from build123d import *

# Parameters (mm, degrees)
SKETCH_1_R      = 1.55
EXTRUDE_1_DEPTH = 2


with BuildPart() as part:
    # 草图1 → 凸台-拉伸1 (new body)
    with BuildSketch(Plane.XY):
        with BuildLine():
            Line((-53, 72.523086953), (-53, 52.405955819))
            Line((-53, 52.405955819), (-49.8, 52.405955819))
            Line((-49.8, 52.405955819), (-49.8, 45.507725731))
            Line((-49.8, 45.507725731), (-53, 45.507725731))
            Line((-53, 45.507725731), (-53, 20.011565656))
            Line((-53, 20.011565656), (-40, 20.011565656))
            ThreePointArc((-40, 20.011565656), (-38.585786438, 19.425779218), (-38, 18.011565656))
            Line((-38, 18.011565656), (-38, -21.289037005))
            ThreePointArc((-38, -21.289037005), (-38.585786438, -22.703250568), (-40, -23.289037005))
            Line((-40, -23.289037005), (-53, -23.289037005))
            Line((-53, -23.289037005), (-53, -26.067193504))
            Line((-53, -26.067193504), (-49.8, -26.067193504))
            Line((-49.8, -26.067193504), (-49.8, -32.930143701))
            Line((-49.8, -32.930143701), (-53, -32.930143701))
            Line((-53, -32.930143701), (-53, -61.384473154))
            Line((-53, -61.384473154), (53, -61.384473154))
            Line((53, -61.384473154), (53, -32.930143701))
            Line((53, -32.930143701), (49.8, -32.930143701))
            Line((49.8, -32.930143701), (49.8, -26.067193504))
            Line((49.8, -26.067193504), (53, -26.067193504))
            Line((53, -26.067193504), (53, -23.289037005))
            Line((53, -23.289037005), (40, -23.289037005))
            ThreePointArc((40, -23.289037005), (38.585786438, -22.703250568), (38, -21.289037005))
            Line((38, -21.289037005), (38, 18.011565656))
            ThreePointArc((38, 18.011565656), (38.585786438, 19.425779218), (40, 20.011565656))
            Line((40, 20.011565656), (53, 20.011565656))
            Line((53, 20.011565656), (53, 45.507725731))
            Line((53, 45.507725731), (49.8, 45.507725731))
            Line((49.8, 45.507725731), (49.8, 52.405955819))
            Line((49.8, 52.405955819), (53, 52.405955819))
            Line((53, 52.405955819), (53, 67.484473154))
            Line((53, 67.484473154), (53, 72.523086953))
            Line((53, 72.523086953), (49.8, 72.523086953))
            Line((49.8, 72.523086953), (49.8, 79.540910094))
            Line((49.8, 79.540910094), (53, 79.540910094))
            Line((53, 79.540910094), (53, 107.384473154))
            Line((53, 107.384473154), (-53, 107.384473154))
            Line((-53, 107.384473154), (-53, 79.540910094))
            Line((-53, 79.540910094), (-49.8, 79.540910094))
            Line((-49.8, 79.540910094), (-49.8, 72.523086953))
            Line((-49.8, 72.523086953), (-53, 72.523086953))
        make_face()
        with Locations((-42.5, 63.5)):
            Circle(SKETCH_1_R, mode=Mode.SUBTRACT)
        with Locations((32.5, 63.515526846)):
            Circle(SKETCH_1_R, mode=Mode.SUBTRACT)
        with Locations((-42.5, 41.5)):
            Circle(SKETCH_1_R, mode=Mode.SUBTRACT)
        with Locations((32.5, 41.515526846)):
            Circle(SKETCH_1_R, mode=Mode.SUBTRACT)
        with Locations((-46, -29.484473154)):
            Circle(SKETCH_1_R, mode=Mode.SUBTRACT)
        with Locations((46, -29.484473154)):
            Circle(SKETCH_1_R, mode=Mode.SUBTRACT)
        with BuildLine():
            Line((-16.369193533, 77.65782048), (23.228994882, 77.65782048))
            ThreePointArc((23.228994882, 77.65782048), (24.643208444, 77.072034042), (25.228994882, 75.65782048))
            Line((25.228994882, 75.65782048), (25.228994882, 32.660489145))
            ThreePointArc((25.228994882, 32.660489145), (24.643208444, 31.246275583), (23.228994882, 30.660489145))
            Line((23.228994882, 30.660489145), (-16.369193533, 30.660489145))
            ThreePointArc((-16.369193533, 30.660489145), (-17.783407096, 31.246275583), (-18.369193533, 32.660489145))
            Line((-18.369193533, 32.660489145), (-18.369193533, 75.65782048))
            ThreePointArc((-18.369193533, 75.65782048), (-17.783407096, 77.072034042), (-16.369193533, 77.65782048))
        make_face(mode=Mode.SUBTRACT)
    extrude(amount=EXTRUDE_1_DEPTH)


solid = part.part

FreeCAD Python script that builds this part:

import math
import FreeCAD as App
import Part
import Sketcher

V = App.Vector
Q = App.Units.Quantity

doc = App.newDocument("Part")
body = doc.addObject("PartDesign::Body", "Body")

sketch1 = doc.addObject("Sketcher::SketchObject", "Sketch")
body.addObject(sketch1)
sketch1.AttachmentSupport = (doc.XY_Plane, [""])
sketch1.MapMode = "FlatFace"
sketch1.addGeometry([
    Part.LineSegment(V(-53, 72.5, 0), V(-53, 52.4, 0)),
    Part.LineSegment(V(-53, 52.4, 0), V(-49.8, 52.4, 0)),
    Part.LineSegment(V(-49.8, 52.4, 0), V(-49.8, 45.5, 0)),
    Part.LineSegment(V(-49.8, 45.5, 0), V(-53, 45.5, 0)),
    Part.LineSegment(V(-53, 45.5, 0), V(-53, 20, 0)),
    Part.LineSegment(V(-53, 20, 0), V(-40, 20, 0)),
    Part.ArcOfCircle(Part.Circle(V(-40, 18, 0), V(0, 0, 1), 2), math.radians(0), math.radians(90)),
    Part.LineSegment(V(-38, 18, 0), V(-38, -21.3, 0)),
    Part.ArcOfCircle(Part.Circle(V(-40, -21.3, 0), V(0, 0, 1), 2), math.radians(-90), math.radians(0)),
    Part.LineSegment(V(-40, -23.3, 0), V(-53, -23.3, 0)),
    Part.LineSegment(V(-53, -23.3, 0), V(-53, -26.1, 0)),
    Part.LineSegment(V(-53, -26.1, 0), V(-49.8, -26.1, 0)),
    Part.LineSegment(V(-49.8, -26.1, 0), V(-49.8, -32.9, 0)),
    Part.LineSegment(V(-49.8, -32.9, 0), V(-53, -32.9, 0)),
    Part.LineSegment(V(-53, -32.9, 0), V(-53, -61.4, 0)),
    Part.LineSegment(V(-53, -61.4, 0), V(53, -61.4, 0)),
    Part.LineSegment(V(53, -61.4, 0), V(53, -32.9, 0)),
    Part.LineSegment(V(53, -32.9, 0), V(49.8, -32.9, 0)),
    Part.LineSegment(V(49.8, -32.9, 0), V(49.8, -26.1, 0)),
    Part.LineSegment(V(49.8, -26.1, 0), V(53, -26.1, 0)),
    Part.LineSegment(V(53, -26.1, 0), V(53, -23.3, 0)),
    Part.LineSegment(V(53, -23.3, 0), V(40, -23.3, 0)),
    Part.ArcOfCircle(Part.Circle(V(40, -21.3, 0), V(0, 0, 1), 2), math.radians(180), math.radians(270)),
    Part.LineSegment(V(38, -21.3, 0), V(38, 18, 0)),
    Part.ArcOfCircle(Part.Circle(V(40, 18, 0), V(0, 0, 1), 2), math.radians(90), math.radians(180)),
    Part.LineSegment(V(40, 20, 0), V(53, 20, 0)),
    Part.LineSegment(V(53, 20, 0), V(53, 45.5, 0)),
    Part.LineSegment(V(53, 45.5, 0), V(49.8, 45.5, 0)),
    Part.LineSegment(V(49.8, 45.5, 0), V(49.8, 52.4, 0)),
    Part.LineSegment(V(49.8, 52.4, 0), V(53, 52.4, 0)),
    Part.LineSegment(V(53, 52.4, 0), V(53, 72.5, 0)),
    Part.LineSegment(V(53, 72.5, 0), V(49.8, 72.5, 0)),
    Part.LineSegment(V(49.8, 72.5, 0), V(49.8, 79.5, 0)),
    Part.LineSegment(V(49.8, 79.5, 0), V(53, 79.5, 0)),
    Part.LineSegment(V(53, 79.5, 0), V(53, 107.4, 0)),
    Part.LineSegment(V(53, 107.4, 0), V(-53, 107.4, 0)),
    Part.LineSegment(V(-53, 107.4, 0), V(-53, 79.5, 0)),
    Part.LineSegment(V(-53, 79.5, 0), V(-49.8, 79.5, 0)),
    Part.LineSegment(V(-49.8, 79.5, 0), V(-49.8, 72.5, 0)),
    Part.LineSegment(V(-49.8, 72.5, 0), V(-53, 72.5, 0)),
    Part.Circle(V(-46, -29.5, 0), V(0, 0, 1), 1.6),
    Part.Circle(V(46, -29.5, 0), V(0, 0, 1), 1.6),
    Part.Circle(V(-42.5, 41.5, 0), V(0, 0, 1), 1.6),
    Part.Circle(V(-42.5, 63.5, 0), V(0, 0, 1), 1.6),
    Part.Circle(V(32.5, 41.5, 0), V(0, 0, 1), 1.6),
    Part.ArcOfCircle(Part.Circle(V(-16.4, 75.7, 0), V(0, 0, 1), 2), math.radians(90), math.radians(180)),
    Part.LineSegment(V(-16.4, 77.7, 0), V(23.2, 77.7, 0)),
    Part.ArcOfCircle(Part.Circle(V(23.2, 75.7, 0), V(0, 0, 1), 2), math.radians(0), math.radians(90)),
    Part.LineSegment(V(25.2, 75.7, 0), V(25.2, 32.7, 0)),
    Part.ArcOfCircle(Part.Circle(V(23.2, 32.7, 0), V(0, 0, 1), 2), math.radians(-90), math.radians(0)),
    Part.LineSegment(V(23.2, 30.7, 0), V(-16.4, 30.7, 0)),
    Part.ArcOfCircle(Part.Circle(V(-16.4, 32.7, 0), V(0, 0, 1), 2), math.radians(180), math.radians(270)),
    Part.LineSegment(V(-18.4, 32.7, 0), V(-18.4, 75.7, 0)),
    Part.Circle(V(32.5, 63.5, 0), V(0, 0, 1), 1.6),
], False)
sketch1.addConstraint([
    Sketcher.Constraint("Coincident", 0, 2, 1, 1),
    Sketcher.Constraint("Coincident", 1, 2, 2, 1),
    Sketcher.Constraint("Coincident", 2, 2, 3, 1),
    Sketcher.Constraint("Coincident", 3, 2, 4, 1),
    Sketcher.Constraint("Coincident", 4, 2, 5, 1),
    Sketcher.Constraint("Tangent", 5, 2, 6, 2),
    Sketcher.Constraint("Tangent", 6, 1, 7, 1),
    Sketcher.Constraint("Tangent", 7, 2, 8, 2),
    Sketcher.Constraint("Tangent", 8, 1, 9, 1),
    Sketcher.Constraint("Coincident", 9, 2, 10, 1),
    Sketcher.Constraint("Coincident", 10, 2, 11, 1),
    Sketcher.Constraint("Coincident", 11, 2, 12, 1),
    Sketcher.Constraint("Coincident", 12, 2, 13, 1),
    Sketcher.Constraint("Coincident", 13, 2, 14, 1),
    Sketcher.Constraint("Coincident", 14, 2, 15, 1),
    Sketcher.Constraint("Coincident", 15, 2, 16, 1),
    Sketcher.Constraint("Coincident", 16, 2, 17, 1),
    Sketcher.Constraint("Coincident", 17, 2, 18, 1),
    Sketcher.Constraint("Coincident", 18, 2, 19, 1),
    Sketcher.Constraint("Coincident", 19, 2, 20, 1),
    Sketcher.Constraint("Coincident", 20, 2, 21, 1),
    Sketcher.Constraint("Tangent", 21, 2, 22, 2),
    Sketcher.Constraint("Tangent", 22, 1, 23, 1),
    Sketcher.Constraint("Tangent", 23, 2, 24, 2),
    Sketcher.Constraint("Tangent", 24, 1, 25, 1),
    Sketcher.Constraint("Coincident", 25, 2, 26, 1),
    Sketcher.Constraint("Coincident", 26, 2, 27, 1),
    Sketcher.Constraint("Coincident", 27, 2, 28, 1),
    Sketcher.Constraint("Coincident", 28, 2, 29, 1),
    Sketcher.Constraint("Coincident", 29, 2, 30, 1),
    Sketcher.Constraint("Coincident", 30, 2, 31, 1),
    Sketcher.Constraint("Coincident", 31, 2, 32, 1),
    Sketcher.Constraint("Coincident", 32, 2, 33, 1),
    Sketcher.Constraint("Coincident", 33, 2, 34, 1),
    Sketcher.Constraint("Coincident", 34, 2, 35, 1),
    Sketcher.Constraint("Coincident", 35, 2, 36, 1),
    Sketcher.Constraint("Coincident", 36, 2, 37, 1),
    Sketcher.Constraint("Coincident", 37, 2, 38, 1),
    Sketcher.Constraint("Coincident", 38, 2, 39, 1),
    Sketcher.Constraint("Coincident", 39, 2, 0, 1),
    Sketcher.Constraint("Tangent", 45, 1, 46, 1),
    Sketcher.Constraint("Tangent", 46, 2, 47, 2),
    Sketcher.Constraint("Tangent", 47, 1, 48, 1),
    Sketcher.Constraint("Tangent", 48, 2, 49, 2),
    Sketcher.Constraint("Tangent", 49, 1, 50, 1),
    Sketcher.Constraint("Tangent", 50, 2, 51, 2),
    Sketcher.Constraint("Tangent", 51, 1, 52, 1),
    Sketcher.Constraint("Tangent", 52, 2, 45, 2),
    Sketcher.Constraint("Vertical", 0),
    Sketcher.Constraint("Horizontal", 1),
    Sketcher.Constraint("Vertical", 2),
    Sketcher.Constraint("Horizontal", 3),
    Sketcher.Constraint("Vertical", 4),
    Sketcher.Constraint("Horizontal", 5),
    Sketcher.Constraint("Vertical", 7),
    Sketcher.Constraint("Horizontal", 9),
    Sketcher.Constraint("Vertical", 10),
    Sketcher.Constraint("Horizontal", 11),
    Sketcher.Constraint("Vertical", 12),
    Sketcher.Constraint("Horizontal", 13),
    Sketcher.Constraint("Vertical", 14),
    Sketcher.Constraint("Horizontal", 15),
    Sketcher.Constraint("Vertical", 16),
    Sketcher.Constraint("Horizontal", 17),
    Sketcher.Constraint("Vertical", 18),
    Sketcher.Constraint("Horizontal", 19),
    Sketcher.Constraint("Vertical", 20),
    Sketcher.Constraint("Horizontal", 21),
    Sketcher.Constraint("Vertical", 23),
    Sketcher.Constraint("Horizontal", 25),
    Sketcher.Constraint("Vertical", 26),
    Sketcher.Constraint("Horizontal", 27),
    Sketcher.Constraint("Vertical", 28),
    Sketcher.Constraint("Horizontal", 29),
    Sketcher.Constraint("Vertical", 30),
    Sketcher.Constraint("Horizontal", 31),
    Sketcher.Constraint("Vertical", 32),
    Sketcher.Constraint("Horizontal", 33),
    Sketcher.Constraint("Vertical", 34),
    Sketcher.Constraint("Horizontal", 35),
    Sketcher.Constraint("Vertical", 36),
    Sketcher.Constraint("Horizontal", 37),
    Sketcher.Constraint("Vertical", 38),
    Sketcher.Constraint("Horizontal", 39),
    Sketcher.Constraint("Horizontal", 46),
    Sketcher.Constraint("Vertical", 48),
    Sketcher.Constraint("Horizontal", 50),
    Sketcher.Constraint("Vertical", 52),
    Sketcher.Constraint("Equal", 6, 8),
    Sketcher.Constraint("Equal", 8, 22),
    Sketcher.Constraint("Equal", 22, 24),
    Sketcher.Constraint("Equal", 40, 41),
    Sketcher.Constraint("Equal", 41, 42),
    Sketcher.Constraint("Equal", 42, 43),
    Sketcher.Constraint("Equal", 43, 44),
    Sketcher.Constraint("Equal", 24, 45),
    Sketcher.Constraint("Equal", 45, 47),
    Sketcher.Constraint("Equal", 47, 49),
    Sketcher.Constraint("Equal", 49, 51),
    Sketcher.Constraint("Equal", 44, 53),
    Sketcher.Constraint("Symmetric", 8, 3, 22, 3, -2),
    Sketcher.Constraint("Symmetric", 40, 3, 41, 3, -2),
    Sketcher.Constraint("Symmetric", 13, 2, 16, 2, -2),
    Sketcher.Constraint("Symmetric", 11, 2, 18, 2, -2),
    Sketcher.Constraint("Symmetric", 4, 2, 25, 2, -2),
    Sketcher.Constraint("Symmetric", 2, 2, 27, 2, -2),
    Sketcher.Constraint("Symmetric", 0, 2, 29, 2, -2),
    Sketcher.Constraint("Symmetric", 33, 2, 36, 2, -2),
    Sketcher.Constraint("Symmetric", 31, 2, 38, 2, -2),
    Sketcher.Constraint("Vertical", 42, 3, 43, 3),
    Sketcher.Constraint("Vertical", 44, 3, 53, 3),
    Sketcher.Constraint("Vertical", 0, 2, 3, 2),
    Sketcher.Constraint("Vertical", 4, 2, 9, 2),
    Sketcher.Constraint("Vertical", 2, 2, 11, 2),
    Sketcher.Constraint("Vertical", 10, 2, 13, 2),
    Sketcher.Constraint("Vertical", 16, 2, 19, 2),
    Sketcher.Constraint("Vertical", 28, 2, 31, 2),
    Sketcher.Constraint("Vertical", 30, 2, 33, 2),
    Sketcher.Constraint("Radius", 6, Q("2 mm")),
    Sketcher.Constraint("Diameter", 40, Q("3.1 mm")),
    Sketcher.Constraint("DistanceX", 5, 1, 5, 2, Q("13 mm")),
    Sketcher.Constraint("DistanceX", 15, 1, 15, 2, Q("106 mm")),
    Sketcher.Constraint("DistanceX", 1, 1, 1, 2, Q("3.2 mm")),
    Sketcher.Constraint("DistanceX", 40, 3, -1, 1, Q("46 mm")),
    Sketcher.Constraint("DistanceX", 42, 3, -1, 1, Q("42.5 mm")),
    Sketcher.Constraint("DistanceY", -1, 1, 42, 3, Q("41.5 mm")),
    Sketcher.Constraint("DistanceY", -1, 1, 43, 3, Q("63.5 mm")),
    Sketcher.Constraint("DistanceX", -1, 1, 44, 3, Q("32.5 mm")),
    Sketcher.Constraint("DistanceX", 46, 1, 46, 2, Q("39.598188 mm")),
    Sketcher.Constraint("DistanceY", 0, 2, 0, 1, Q("20.117131 mm")),
    Sketcher.Constraint("DistanceY", 2, 2, 2, 1, Q("6.89823 mm")),
    Sketcher.Constraint("DistanceY", 4, 2, 4, 1, Q("25.49616 mm")),
    Sketcher.Constraint("DistanceY", 12, 2, 12, 1, Q("6.86295 mm")),
    Sketcher.Constraint("DistanceY", 14, 2, 14, 1, Q("28.454329 mm")),
    Sketcher.Constraint("DistanceY", 48, 2, 48, 1, Q("42.997331 mm")),
    Sketcher.Constraint("DistanceY", 7, 2, 7, 1, Q("39.300603 mm")),
    Sketcher.Constraint("DistanceY", 10, 2, 10, 1, Q("2.778156 mm")),
    Sketcher.Constraint("DistanceY", 32, 1, 32, 2, Q("7.017823 mm")),
    Sketcher.Constraint("DistanceY", 34, 1, 34, 2, Q("27.843563 mm")),
    Sketcher.Constraint("DistanceY", -1, 1, 45, 3, Q("75.65782 mm")),
    Sketcher.Constraint("DistanceY", -1, 1, 32, 2, Q("79.54091 mm")),
    Sketcher.Constraint("DistanceY", 40, 3, -1, 1, Q("29.484473 mm")),
    Sketcher.Constraint("DistanceY", -1, 1, 44, 3, Q("41.515527 mm")),
    Sketcher.Constraint("DistanceX", 45, 3, -1, 1, Q("16.369194 mm")),
    Sketcher.Constraint("DistanceY", -1, 1, 53, 3, Q("63.515527 mm")),
])
pad1 = doc.addObject("PartDesign::Pad", "Pad")
body.addObject(pad1)
pad1.Profile = sketch1
pad1.Length = 2

doc.recompute()
